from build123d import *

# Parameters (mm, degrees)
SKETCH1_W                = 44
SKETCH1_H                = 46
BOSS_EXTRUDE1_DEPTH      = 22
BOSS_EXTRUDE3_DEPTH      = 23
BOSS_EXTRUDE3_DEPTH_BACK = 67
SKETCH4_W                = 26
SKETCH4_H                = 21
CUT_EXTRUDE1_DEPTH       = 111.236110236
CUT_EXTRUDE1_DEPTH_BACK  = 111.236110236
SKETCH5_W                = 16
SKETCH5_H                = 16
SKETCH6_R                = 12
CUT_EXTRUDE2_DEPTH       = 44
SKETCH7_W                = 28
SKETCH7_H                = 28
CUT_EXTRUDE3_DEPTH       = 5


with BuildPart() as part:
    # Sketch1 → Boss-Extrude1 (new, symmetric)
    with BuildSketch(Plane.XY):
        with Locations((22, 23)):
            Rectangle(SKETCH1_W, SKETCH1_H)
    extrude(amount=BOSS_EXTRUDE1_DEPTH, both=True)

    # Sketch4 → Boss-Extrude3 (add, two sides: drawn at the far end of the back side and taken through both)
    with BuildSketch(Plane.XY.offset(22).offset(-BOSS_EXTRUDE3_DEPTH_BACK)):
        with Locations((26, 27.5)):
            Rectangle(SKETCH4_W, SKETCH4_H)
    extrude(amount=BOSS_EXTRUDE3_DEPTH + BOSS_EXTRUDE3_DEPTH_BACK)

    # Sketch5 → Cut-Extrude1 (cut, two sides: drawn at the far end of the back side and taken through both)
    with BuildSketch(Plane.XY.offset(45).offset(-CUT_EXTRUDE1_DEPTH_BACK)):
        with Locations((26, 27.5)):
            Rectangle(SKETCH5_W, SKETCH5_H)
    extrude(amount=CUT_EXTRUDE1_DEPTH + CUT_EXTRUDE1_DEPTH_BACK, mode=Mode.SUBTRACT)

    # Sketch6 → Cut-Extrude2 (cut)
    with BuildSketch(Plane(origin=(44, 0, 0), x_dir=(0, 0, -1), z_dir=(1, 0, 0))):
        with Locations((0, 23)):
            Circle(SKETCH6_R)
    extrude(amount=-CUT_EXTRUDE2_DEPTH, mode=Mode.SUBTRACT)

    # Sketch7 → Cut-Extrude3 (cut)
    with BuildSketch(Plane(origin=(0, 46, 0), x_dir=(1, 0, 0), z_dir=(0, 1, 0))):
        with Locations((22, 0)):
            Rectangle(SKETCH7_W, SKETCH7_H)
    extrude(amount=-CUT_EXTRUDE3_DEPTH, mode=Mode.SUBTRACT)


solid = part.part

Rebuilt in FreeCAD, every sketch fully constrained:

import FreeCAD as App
import Part
import Sketcher


def add_polygon(sketch, points):
    """Adds a closed chain of lines whose ends are joined by coincident constraints."""
    first, n = sketch.GeometryCount, len(points)
    for a, b in zip(points, points[1:] + points[:1]):
        sketch.addGeometry(Part.LineSegment(App.Vector(*a, 0), App.Vector(*b, 0)), False)
    for i in range(n):
        sketch.addConstraint(Sketcher.Constraint("Coincident", first + i, 2, first + (i + 1) % n, 1))

doc = App.newDocument("Part")
body = doc.addObject("PartDesign::Body", "Body")

sketch1 = body.newObject("Sketcher::SketchObject", "Sketch")
sketch1.AttachmentSupport = (doc.getObject("XY_Plane"), [""])
sketch1.MapMode = "FlatFace"
add_polygon(sketch1, [(0, 46), (0, 0), (44, 0), (44, 46)])
sketch1.addConstraint([
    Sketcher.Constraint("Vertical", 0),
    Sketcher.Constraint("Horizontal", 1),
    Sketcher.Constraint("Vertical", 2),
    Sketcher.Constraint("Horizontal", 3),
    Sketcher.Constraint("Coincident", 0, 2, -1, 1),
    Sketcher.Constraint("DistanceX", 1, 1, 1, 2, 44.0),
    Sketcher.Constraint("DistanceY", 0, 2, 0, 1, 46.0),
])
pad1 = body.newObject("PartDesign::Pad", "Pad")
pad1.Profile = sketch1
pad1.Length = 44
pad1.Midplane = True

sketch2 = body.newObject("Sketcher::SketchObject", "Sketch001")
sketch2.AttachmentSupport = (doc.getObject("XY_Plane"), [""])
sketch2.MapMode = "FlatFace"
sketch2.AttachmentOffset = App.Placement(App.Vector(0, 0, 22), App.Rotation())
add_polygon(sketch2, [(13, 38), (13, 17), (39, 17), (39, 38)])
sketch2.addConstraint([
    Sketcher.Constraint("Vertical", 0),
    Sketcher.Constraint("Horizontal", 1),
    Sketcher.Constraint("Vertical", 2),
    Sketcher.Constraint("Horizontal", 3),
    Sketcher.Constraint("DistanceX", 1, 1, 1, 2, 26.0),
    Sketcher.Constraint("DistanceY", 0, 2, 0, 1, 21.0),
    Sketcher.Constraint("DistanceX", -1, 1, 0, 2, 13.0),
    Sketcher.Constraint("DistanceY", -1, 1, 0, 2, 17.0),
])
pad2 = body.newObject("PartDesign::Pad", "Pad001")
pad2.Profile = sketch2
pad2.Type = "TwoLengths"
pad2.Length = 23
pad2.Length2 = 67

sketch3 = body.newObject("Sketcher::SketchObject", "Sketch002")
sketch3.AttachmentSupport = (doc.getObject("XY_Plane"), [""])
sketch3.MapMode = "FlatFace"
sketch3.AttachmentOffset = App.Placement(App.Vector(0, 0, 45), App.Rotation())
add_polygon(sketch3, [(18, 36), (18, 20), (34, 20), (34, 36)])
sketch3.addConstraint([
    Sketcher.Constraint("Vertical", 0),
    Sketcher.Constraint("Horizontal", 1),
    Sketcher.Constraint("Vertical", 2),
    Sketcher.Constraint("Horizontal", 3),
    Sketcher.Constraint("Equal", 3, 0),
    Sketcher.Constraint("DistanceX", 1, 1, 1, 2, 16.0),
    Sketcher.Constraint("DistanceX", -1, 1, 0, 2, 18.0),
    Sketcher.Constraint("DistanceY", -1, 1, 0, 2, 19.5),
])
pocket1 = body.newObject("PartDesign::Pocket", "Pocket")
pocket1.Profile = sketch3
pocket1.Type = "ThroughAll"
pocket1.Midplane = True

sketch4 = body.newObject("Sketcher::SketchObject", "Sketch003")
sketch4.AttachmentSupport = (doc.getObject("YZ_Plane"), [""])
sketch4.MapMode = "FlatFace"
sketch4.AttachmentOffset = App.Placement(App.Vector(0, 0, 44), App.Rotation())
sketch4.addGeometry(Part.Circle(App.Vector(23, 0, 0), App.Vector(0, 0, 1), 12), False)
sketch4.addConstraint([
    Sketcher.Constraint("PointOnObject", 0, 3, -1),
    Sketcher.Constraint("Diameter", 0, 24.0),
    Sketcher.Constraint("DistanceX", -1, 1, 0, 3, 23.0),
])
pocket2 = body.newObject("PartDesign::Pocket", "Pocket001")
pocket2.Profile = sketch4
pocket2.Length = 44

sketch5 = body.newObject("Sketcher::SketchObject", "Sketch004")
sketch5.AttachmentSupport = (doc.getObject("XZ_Plane"), [""])
sketch5.MapMode = "FlatFace"
sketch5.AttachmentOffset = App.Placement(App.Vector(0, 0, -46), App.Rotation())
add_polygon(sketch5, [(8, -14), (8, 14), (36, 14), (36, -14)])
sketch5.addConstraint([
    Sketcher.Constraint("Vertical", 0),
    Sketcher.Constraint("Horizontal", 1),
    Sketcher.Constraint("Vertical", 2),
    Sketcher.Constraint("Horizontal", 3),
    Sketcher.Constraint("Equal", 3, 0),
    Sketcher.Constraint("DistanceX", 1, 1, 1, 2, 28.0),
    Sketcher.Constraint("DistanceX", -1, 1, 0, 2, 8.0),
    Sketcher.Constraint("DistanceY", -1, 1, 0, 2, 14.0),
])
pocket3 = body.newObject("PartDesign::Pocket", "Pocket002")
pocket3.Profile = sketch5
pocket3.Length = 5
pocket3.Reversed = True

doc.recompute()
